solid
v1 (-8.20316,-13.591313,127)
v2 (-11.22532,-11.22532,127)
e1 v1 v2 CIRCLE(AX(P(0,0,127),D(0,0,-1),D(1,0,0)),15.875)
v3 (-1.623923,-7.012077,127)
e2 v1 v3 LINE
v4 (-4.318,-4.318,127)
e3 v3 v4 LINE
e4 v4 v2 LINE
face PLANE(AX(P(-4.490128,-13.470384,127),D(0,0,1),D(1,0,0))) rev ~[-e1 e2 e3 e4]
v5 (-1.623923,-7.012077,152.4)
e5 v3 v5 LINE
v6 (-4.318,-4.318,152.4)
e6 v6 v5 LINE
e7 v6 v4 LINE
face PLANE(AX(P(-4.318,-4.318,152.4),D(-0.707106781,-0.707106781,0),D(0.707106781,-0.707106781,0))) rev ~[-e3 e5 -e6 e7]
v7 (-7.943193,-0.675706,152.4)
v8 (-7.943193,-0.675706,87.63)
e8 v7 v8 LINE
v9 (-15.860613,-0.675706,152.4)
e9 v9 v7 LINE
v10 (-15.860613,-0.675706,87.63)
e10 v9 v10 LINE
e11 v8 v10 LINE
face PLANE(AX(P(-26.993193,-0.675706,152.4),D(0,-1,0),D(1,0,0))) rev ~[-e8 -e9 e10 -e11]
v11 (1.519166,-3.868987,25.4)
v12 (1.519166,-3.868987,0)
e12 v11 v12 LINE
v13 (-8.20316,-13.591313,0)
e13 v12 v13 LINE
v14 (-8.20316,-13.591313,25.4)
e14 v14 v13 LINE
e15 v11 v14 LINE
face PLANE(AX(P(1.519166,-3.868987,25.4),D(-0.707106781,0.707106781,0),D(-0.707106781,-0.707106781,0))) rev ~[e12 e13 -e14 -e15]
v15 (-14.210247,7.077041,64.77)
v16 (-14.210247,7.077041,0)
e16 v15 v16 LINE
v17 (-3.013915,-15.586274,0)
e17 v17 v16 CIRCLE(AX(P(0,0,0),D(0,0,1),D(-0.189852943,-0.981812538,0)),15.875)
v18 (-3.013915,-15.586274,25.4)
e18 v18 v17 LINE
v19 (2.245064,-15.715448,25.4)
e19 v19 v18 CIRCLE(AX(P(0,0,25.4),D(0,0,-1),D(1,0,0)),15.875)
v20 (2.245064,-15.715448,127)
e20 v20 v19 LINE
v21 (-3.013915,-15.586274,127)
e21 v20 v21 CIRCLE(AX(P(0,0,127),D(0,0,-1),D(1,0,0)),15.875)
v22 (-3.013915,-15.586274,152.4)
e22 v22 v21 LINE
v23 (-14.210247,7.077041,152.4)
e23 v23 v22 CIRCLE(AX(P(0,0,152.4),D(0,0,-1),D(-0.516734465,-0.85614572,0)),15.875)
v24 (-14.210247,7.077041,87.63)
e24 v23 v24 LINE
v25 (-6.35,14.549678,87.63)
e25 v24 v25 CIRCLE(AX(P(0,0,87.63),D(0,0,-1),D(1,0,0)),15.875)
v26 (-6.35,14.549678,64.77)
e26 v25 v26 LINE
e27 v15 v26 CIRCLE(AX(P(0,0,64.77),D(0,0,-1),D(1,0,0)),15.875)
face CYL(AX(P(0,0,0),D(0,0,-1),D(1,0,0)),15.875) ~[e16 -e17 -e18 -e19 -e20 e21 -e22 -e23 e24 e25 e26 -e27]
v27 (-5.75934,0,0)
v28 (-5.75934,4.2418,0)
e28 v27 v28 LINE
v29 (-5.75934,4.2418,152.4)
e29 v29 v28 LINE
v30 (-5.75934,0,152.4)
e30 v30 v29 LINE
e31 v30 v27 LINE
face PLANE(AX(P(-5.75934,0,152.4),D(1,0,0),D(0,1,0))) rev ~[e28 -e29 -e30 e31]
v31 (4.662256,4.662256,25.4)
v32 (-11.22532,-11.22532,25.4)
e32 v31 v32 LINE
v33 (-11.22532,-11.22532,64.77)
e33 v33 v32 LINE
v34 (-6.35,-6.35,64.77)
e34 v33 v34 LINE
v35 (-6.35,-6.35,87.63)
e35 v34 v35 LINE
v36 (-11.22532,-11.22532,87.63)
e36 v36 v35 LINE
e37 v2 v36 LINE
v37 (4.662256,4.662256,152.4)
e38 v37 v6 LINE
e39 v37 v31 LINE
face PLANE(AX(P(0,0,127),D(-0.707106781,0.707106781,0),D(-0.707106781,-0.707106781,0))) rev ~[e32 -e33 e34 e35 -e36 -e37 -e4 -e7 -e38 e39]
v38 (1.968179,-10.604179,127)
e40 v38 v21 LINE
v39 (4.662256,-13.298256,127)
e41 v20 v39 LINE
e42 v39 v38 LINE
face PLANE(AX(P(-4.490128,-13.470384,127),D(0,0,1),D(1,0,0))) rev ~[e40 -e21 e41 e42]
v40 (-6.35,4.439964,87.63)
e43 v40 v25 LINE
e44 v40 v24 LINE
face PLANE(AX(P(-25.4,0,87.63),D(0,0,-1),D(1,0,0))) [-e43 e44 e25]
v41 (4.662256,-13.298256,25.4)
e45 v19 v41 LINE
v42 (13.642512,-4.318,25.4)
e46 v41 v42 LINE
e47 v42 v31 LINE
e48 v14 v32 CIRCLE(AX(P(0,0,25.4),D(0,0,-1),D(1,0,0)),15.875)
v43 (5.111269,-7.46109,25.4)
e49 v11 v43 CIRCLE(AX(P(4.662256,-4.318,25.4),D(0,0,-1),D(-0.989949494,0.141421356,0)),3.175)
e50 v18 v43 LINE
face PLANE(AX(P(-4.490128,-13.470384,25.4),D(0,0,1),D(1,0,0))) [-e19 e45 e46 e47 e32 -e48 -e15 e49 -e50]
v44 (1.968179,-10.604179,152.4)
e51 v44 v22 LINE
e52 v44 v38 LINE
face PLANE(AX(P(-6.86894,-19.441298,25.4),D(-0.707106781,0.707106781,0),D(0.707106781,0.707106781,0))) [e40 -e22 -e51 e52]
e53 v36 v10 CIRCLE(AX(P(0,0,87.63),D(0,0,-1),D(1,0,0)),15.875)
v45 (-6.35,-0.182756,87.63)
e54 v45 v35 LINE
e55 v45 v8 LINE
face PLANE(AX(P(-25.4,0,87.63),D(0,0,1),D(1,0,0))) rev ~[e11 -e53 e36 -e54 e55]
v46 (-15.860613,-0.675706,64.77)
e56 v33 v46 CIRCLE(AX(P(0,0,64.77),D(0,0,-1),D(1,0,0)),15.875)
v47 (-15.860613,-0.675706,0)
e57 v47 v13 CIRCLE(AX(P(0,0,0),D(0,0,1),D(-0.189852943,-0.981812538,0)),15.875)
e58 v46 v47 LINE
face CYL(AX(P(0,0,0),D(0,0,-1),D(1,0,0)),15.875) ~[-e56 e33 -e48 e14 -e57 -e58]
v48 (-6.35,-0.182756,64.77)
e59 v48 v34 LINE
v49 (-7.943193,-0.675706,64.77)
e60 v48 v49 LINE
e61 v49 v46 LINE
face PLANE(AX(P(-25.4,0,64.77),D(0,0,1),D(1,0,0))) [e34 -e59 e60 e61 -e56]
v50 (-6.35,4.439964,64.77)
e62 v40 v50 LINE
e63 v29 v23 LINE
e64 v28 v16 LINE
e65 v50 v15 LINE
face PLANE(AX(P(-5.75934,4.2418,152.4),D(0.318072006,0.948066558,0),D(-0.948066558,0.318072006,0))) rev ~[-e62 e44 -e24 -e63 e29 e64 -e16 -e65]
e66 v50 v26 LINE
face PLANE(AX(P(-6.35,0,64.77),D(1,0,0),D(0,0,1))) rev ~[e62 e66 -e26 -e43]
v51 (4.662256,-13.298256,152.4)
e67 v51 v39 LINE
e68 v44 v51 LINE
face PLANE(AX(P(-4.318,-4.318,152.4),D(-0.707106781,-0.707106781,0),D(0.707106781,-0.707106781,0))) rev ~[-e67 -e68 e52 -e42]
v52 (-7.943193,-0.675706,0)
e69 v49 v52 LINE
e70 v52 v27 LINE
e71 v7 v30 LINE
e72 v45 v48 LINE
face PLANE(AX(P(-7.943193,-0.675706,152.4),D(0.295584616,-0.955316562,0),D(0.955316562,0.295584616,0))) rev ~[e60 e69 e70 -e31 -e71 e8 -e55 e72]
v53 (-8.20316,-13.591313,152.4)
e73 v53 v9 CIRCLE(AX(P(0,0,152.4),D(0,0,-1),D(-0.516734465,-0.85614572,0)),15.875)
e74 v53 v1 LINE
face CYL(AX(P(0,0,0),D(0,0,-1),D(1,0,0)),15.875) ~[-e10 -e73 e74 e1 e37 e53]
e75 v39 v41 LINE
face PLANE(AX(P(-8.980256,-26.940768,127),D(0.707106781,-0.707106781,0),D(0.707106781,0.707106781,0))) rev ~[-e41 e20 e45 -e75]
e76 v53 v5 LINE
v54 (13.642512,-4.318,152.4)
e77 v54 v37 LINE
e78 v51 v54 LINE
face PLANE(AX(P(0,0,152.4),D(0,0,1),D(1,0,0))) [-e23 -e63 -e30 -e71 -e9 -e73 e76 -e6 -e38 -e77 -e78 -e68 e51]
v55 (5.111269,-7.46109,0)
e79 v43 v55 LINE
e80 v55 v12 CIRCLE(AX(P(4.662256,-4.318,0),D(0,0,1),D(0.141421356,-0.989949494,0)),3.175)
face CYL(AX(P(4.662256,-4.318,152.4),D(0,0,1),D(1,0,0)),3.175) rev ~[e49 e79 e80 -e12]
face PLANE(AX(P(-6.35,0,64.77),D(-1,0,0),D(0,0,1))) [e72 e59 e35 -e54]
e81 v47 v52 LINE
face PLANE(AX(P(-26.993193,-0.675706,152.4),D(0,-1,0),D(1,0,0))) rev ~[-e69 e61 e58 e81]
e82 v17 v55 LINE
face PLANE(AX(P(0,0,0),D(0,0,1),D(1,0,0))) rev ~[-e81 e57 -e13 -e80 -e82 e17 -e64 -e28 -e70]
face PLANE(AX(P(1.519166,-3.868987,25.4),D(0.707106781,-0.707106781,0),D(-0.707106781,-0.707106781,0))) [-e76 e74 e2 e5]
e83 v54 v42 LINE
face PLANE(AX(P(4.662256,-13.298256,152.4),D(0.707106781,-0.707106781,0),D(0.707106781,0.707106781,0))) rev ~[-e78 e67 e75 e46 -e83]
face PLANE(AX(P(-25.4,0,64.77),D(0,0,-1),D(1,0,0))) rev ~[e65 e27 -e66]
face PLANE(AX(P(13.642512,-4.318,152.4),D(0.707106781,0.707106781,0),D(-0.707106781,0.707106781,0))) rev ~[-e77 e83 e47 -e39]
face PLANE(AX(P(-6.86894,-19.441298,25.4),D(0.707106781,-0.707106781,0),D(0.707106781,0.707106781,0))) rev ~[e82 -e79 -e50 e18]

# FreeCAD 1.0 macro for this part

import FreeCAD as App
import Part
import Sketcher
Q = App.Units.Quantity


def add_polygon(sketch, points):
    """Adds a closed chain of lines whose ends are joined by coincident constraints."""
    first, n = sketch.GeometryCount, len(points)
    for a, b in zip(points, points[1:] + points[:1]):
        sketch.addGeometry(Part.LineSegment(App.Vector(*a, 0), App.Vector(*b, 0)), False)
    for i in range(n):
        sketch.addConstraint(Sketcher.Constraint("Coincident", first + i, 2, first + (i + 1) % n, 1))

doc = App.newDocument("Part")
body = doc.addObject("PartDesign::Body", "Body")

sketch1 = doc.addObject("Sketcher::SketchObject", "Sketch")
body.addObject(sketch1)
sketch1.AttachmentSupport = (doc.XY_Plane, [""])
sketch1.MapMode = "FlatFace"
sketch1.addGeometry(Part.Circle(App.Vector(0, 0, 0), App.Vector(0, 0, 1), 15.875), False)
sketch1.addConstraint([
    Sketcher.Constraint("Coincident", 0, 3, -1, 1),
    Sketcher.Constraint("Diameter", 0, Q("1.25 in")),
])
pad1 = doc.addObject("PartDesign::Pad", "Pad")
body.addObject(pad1)
pad1.Profile = sketch1
pad1.Length = Q("6 in")

sketch2 = doc.addObject("Sketcher::SketchObject", "Sketch001")
body.addObject(sketch2)
sketch2.AttachmentSupport = (doc.XY_Plane, [""])
sketch2.MapMode = "FlatFace"
sketch2.AttachmentOffset = App.Placement(App.Vector(0, 0, 6 * 25.4), App.Rotation())
add_polygon(sketch2, [(4.662256, 4.662256), (-4.318, -4.318), (4.662256, -13.298256), (13.642512, -4.318)])
sketch2.addConstraint([
    Sketcher.Constraint("Perpendicular", 0, 1),
    Sketcher.Constraint("Perpendicular", 1, 2),
    Sketcher.Constraint("Perpendicular", 2, 3),
    Sketcher.Constraint("Horizontal", 0, 2, 2, 2),
    Sketcher.Constraint("Vertical", 1, 2, 3, 2),
    Sketcher.Constraint("Distance", 0, Q("0.5 in")),
    Sketcher.Constraint("DistanceX", 0, 2, -1, 1, Q("0.17 in")),
    Sketcher.Constraint("DistanceY", 0, 2, -1, 1, Q("0.17 in")),
])
pocket1 = doc.addObject("PartDesign::Pocket", "Pocket")
body.addObject(pocket1)
pocket1.Profile = sketch2
pocket1.Length = Q("5 in")

sketch3 = doc.addObject("Sketcher::SketchObject", "Sketch002")
body.addObject(sketch3)
sketch3.AttachmentSupport = (doc.XY_Plane, [""])
sketch3.MapMode = "FlatFace"
sketch3.AttachmentOffset = App.Placement(App.Vector(0, 0, 6 * 25.4), App.Rotation())
sketch3.addGeometry(Part.Circle(App.Vector(4.662256, -4.318, 0), App.Vector(0, 0, 1), 3.175), False)
sketch3.addConstraint([
    Sketcher.Constraint("Diameter", 0, Q("0.25 in")),
    Sketcher.Constraint("DistanceY", 0, 3, -1, 1, Q("0.17 in")),
    Sketcher.Constraint("DistanceX", -1, 1, 0, 3, Q("4.662256 mm")),
])
pocket2 = doc.addObject("PartDesign::Pocket", "Pocket001")
body.addObject(pocket2)
pocket2.Profile = sketch3
pocket2.Length = Q("6 in")

sketch4 = doc.addObject("Sketcher::SketchObject", "Sketch003")
body.addObject(sketch4)
sketch4.AttachmentSupport = (doc.XY_Plane, [""])
sketch4.MapMode = "FlatFace"
sketch4.AttachmentOffset = App.Placement(App.Vector(0, 0, 5 * 25.4), App.Rotation())
add_polygon(sketch4, [(8.980256, -8.980256), (0, 0), (-17.960512, -17.960512), (-8.980256, -26.940768)])
sketch4.addConstraint([
    Sketcher.Constraint("Coincident", 0, 2, -1, 1),
    Sketcher.Constraint("Perpendicular", 0, 1),
    Sketcher.Constraint("Perpendicular", 1, 2),
    Sketcher.Constraint("Perpendicular", 2, 3),
    Sketcher.Constraint("Distance", 1, Q("1 in")),
    Sketcher.Constraint("Angle", 0, Q("135 deg")),
    Sketcher.Constraint("Distance", 0, Q("0.5 in")),
])
pocket3 = doc.addObject("PartDesign::Pocket", "Pocket002")
body.addObject(pocket3)
pocket3.Profile = sketch4
pocket3.Length = Q("4 in")

sketch5 = doc.addObject("Sketcher::SketchObject", "Sketch004")
body.addObject(sketch5)
sketch5.AttachmentSupport = (doc.XY_Plane, [""])
sketch5.MapMode = "FlatFace"
sketch5.AttachmentOffset = App.Placement(App.Vector(0, 0, 1 * 25.4), App.Rotation())
add_polygon(sketch5, [(-6.86894, -19.441298), (5.111269, -7.46109), (1.519166, -3.868987), (-10.461042, -15.849196)])
sketch5.addConstraint([
    Sketcher.Constraint("Perpendicular", 0, 1),
    Sketcher.Constraint("Perpendicular", 1, 2),
    Sketcher.Constraint("Perpendicular", 2, 3),
    Sketcher.Constraint("Angle", 0, Q("45 deg")),
    Sketcher.Constraint("Distance", 1, Q("0.2 in")),
    Sketcher.Constraint("DistanceY", 3, 2, -1, 1, Q("19.441298 mm")),
    Sketcher.Constraint("DistanceX", -1, 1, 0, 2, Q("5.111269 mm")),
    Sketcher.Constraint("DistanceY", 0, 2, -1, 1, Q("7.46109 mm")),
])
pocket4 = doc.addObject("PartDesign::Pocket", "Pocket003")
body.addObject(pocket4)
pocket4.Profile = sketch5
pocket4.Type = "ThroughAll"
pocket4.Midplane = True

sketch6 = doc.addObject("Sketcher::SketchObject", "Sketch005")
body.addObject(sketch6)
sketch6.AttachmentSupport = (doc.XY_Plane, [""])
sketch6.MapMode = "FlatFace"
sketch6.AttachmentOffset = App.Placement(App.Vector(0, 0, 6 * 25.4), App.Rotation())
add_polygon(sketch6, [(-23.278187, 10.119294), (-26.993193, 10.119294), (-26.993193, -0.675706), (-7.943193, -0.675706), (-5.75934, 0), (-5.75934, 4.2418)])
sketch6.addConstraint([
    Sketcher.Constraint("Horizontal", 0),
    Sketcher.Constraint("Vertical", 1),
    Sketcher.Constraint("Horizontal", 2),
    Sketcher.Constraint("Vertical", 4),
    Sketcher.Constraint("PointOnObject", 3, 2, -1),
    Sketcher.Constraint("DistanceX", 2, 1, 2, 2, Q("0.75 in")),
    Sketcher.Constraint("Distance", 3, Q("0.09 in")),
    Sketcher.Constraint("DistanceY", 1, 2, 1, 1, Q("0.425 in")),
    Sketcher.Constraint("DistanceY", 4, 1, 4, 2, Q("0.167 in")),
    Sketcher.Constraint("Distance", 5, Q("0.7275 in")),
    Sketcher.Constraint("DistanceX", 0, 2, 0, 1, Q("3.715006 mm")),
    Sketcher.Constraint("DistanceX", 3, 2, -1, 1, Q("5.75934 mm")),
])
pocket5 = doc.addObject("PartDesign::Pocket", "Pocket004")
body.addObject(pocket5)
pocket5.Profile = sketch6
pocket5.Type = "ThroughAll"

sketch7 = doc.addObject("Sketcher::SketchObject", "Sketch006")
body.addObject(sketch7)
sketch7.AttachmentSupport = (doc.XZ_Plane, [""])
sketch7.MapMode = "FlatFace"
add_polygon(sketch7, [(-25.4, 87.63), (-25.4, 64.77), (-6.35, 64.77), (-6.35, 87.63)])
sketch7.addConstraint([
    Sketcher.Constraint("Vertical", 0),
    Sketcher.Constraint("Horizontal", 1),
    Sketcher.Constraint("Vertical", 2),
    Sketcher.Constraint("Horizontal", 3),
    Sketcher.Constraint("DistanceY", 0, 2, 0, 1, Q("0.9 in")),
    Sketcher.Constraint("DistanceX", 0, 2, -1, 1, Q("1 in")),
    Sketcher.Constraint("DistanceX", 1, 1, 1, 2, Q("0.75 in")),
    Sketcher.Constraint("DistanceY", -1, 1, 0, 2, Q("2.55 in")),
])
pocket6 = doc.addObject("PartDesign::Pocket", "Pocket005")
body.addObject(pocket6)
pocket6.Profile = sketch7
pocket6.Type = "ThroughAll"
pocket6.Midplane = True

doc.recompute()
